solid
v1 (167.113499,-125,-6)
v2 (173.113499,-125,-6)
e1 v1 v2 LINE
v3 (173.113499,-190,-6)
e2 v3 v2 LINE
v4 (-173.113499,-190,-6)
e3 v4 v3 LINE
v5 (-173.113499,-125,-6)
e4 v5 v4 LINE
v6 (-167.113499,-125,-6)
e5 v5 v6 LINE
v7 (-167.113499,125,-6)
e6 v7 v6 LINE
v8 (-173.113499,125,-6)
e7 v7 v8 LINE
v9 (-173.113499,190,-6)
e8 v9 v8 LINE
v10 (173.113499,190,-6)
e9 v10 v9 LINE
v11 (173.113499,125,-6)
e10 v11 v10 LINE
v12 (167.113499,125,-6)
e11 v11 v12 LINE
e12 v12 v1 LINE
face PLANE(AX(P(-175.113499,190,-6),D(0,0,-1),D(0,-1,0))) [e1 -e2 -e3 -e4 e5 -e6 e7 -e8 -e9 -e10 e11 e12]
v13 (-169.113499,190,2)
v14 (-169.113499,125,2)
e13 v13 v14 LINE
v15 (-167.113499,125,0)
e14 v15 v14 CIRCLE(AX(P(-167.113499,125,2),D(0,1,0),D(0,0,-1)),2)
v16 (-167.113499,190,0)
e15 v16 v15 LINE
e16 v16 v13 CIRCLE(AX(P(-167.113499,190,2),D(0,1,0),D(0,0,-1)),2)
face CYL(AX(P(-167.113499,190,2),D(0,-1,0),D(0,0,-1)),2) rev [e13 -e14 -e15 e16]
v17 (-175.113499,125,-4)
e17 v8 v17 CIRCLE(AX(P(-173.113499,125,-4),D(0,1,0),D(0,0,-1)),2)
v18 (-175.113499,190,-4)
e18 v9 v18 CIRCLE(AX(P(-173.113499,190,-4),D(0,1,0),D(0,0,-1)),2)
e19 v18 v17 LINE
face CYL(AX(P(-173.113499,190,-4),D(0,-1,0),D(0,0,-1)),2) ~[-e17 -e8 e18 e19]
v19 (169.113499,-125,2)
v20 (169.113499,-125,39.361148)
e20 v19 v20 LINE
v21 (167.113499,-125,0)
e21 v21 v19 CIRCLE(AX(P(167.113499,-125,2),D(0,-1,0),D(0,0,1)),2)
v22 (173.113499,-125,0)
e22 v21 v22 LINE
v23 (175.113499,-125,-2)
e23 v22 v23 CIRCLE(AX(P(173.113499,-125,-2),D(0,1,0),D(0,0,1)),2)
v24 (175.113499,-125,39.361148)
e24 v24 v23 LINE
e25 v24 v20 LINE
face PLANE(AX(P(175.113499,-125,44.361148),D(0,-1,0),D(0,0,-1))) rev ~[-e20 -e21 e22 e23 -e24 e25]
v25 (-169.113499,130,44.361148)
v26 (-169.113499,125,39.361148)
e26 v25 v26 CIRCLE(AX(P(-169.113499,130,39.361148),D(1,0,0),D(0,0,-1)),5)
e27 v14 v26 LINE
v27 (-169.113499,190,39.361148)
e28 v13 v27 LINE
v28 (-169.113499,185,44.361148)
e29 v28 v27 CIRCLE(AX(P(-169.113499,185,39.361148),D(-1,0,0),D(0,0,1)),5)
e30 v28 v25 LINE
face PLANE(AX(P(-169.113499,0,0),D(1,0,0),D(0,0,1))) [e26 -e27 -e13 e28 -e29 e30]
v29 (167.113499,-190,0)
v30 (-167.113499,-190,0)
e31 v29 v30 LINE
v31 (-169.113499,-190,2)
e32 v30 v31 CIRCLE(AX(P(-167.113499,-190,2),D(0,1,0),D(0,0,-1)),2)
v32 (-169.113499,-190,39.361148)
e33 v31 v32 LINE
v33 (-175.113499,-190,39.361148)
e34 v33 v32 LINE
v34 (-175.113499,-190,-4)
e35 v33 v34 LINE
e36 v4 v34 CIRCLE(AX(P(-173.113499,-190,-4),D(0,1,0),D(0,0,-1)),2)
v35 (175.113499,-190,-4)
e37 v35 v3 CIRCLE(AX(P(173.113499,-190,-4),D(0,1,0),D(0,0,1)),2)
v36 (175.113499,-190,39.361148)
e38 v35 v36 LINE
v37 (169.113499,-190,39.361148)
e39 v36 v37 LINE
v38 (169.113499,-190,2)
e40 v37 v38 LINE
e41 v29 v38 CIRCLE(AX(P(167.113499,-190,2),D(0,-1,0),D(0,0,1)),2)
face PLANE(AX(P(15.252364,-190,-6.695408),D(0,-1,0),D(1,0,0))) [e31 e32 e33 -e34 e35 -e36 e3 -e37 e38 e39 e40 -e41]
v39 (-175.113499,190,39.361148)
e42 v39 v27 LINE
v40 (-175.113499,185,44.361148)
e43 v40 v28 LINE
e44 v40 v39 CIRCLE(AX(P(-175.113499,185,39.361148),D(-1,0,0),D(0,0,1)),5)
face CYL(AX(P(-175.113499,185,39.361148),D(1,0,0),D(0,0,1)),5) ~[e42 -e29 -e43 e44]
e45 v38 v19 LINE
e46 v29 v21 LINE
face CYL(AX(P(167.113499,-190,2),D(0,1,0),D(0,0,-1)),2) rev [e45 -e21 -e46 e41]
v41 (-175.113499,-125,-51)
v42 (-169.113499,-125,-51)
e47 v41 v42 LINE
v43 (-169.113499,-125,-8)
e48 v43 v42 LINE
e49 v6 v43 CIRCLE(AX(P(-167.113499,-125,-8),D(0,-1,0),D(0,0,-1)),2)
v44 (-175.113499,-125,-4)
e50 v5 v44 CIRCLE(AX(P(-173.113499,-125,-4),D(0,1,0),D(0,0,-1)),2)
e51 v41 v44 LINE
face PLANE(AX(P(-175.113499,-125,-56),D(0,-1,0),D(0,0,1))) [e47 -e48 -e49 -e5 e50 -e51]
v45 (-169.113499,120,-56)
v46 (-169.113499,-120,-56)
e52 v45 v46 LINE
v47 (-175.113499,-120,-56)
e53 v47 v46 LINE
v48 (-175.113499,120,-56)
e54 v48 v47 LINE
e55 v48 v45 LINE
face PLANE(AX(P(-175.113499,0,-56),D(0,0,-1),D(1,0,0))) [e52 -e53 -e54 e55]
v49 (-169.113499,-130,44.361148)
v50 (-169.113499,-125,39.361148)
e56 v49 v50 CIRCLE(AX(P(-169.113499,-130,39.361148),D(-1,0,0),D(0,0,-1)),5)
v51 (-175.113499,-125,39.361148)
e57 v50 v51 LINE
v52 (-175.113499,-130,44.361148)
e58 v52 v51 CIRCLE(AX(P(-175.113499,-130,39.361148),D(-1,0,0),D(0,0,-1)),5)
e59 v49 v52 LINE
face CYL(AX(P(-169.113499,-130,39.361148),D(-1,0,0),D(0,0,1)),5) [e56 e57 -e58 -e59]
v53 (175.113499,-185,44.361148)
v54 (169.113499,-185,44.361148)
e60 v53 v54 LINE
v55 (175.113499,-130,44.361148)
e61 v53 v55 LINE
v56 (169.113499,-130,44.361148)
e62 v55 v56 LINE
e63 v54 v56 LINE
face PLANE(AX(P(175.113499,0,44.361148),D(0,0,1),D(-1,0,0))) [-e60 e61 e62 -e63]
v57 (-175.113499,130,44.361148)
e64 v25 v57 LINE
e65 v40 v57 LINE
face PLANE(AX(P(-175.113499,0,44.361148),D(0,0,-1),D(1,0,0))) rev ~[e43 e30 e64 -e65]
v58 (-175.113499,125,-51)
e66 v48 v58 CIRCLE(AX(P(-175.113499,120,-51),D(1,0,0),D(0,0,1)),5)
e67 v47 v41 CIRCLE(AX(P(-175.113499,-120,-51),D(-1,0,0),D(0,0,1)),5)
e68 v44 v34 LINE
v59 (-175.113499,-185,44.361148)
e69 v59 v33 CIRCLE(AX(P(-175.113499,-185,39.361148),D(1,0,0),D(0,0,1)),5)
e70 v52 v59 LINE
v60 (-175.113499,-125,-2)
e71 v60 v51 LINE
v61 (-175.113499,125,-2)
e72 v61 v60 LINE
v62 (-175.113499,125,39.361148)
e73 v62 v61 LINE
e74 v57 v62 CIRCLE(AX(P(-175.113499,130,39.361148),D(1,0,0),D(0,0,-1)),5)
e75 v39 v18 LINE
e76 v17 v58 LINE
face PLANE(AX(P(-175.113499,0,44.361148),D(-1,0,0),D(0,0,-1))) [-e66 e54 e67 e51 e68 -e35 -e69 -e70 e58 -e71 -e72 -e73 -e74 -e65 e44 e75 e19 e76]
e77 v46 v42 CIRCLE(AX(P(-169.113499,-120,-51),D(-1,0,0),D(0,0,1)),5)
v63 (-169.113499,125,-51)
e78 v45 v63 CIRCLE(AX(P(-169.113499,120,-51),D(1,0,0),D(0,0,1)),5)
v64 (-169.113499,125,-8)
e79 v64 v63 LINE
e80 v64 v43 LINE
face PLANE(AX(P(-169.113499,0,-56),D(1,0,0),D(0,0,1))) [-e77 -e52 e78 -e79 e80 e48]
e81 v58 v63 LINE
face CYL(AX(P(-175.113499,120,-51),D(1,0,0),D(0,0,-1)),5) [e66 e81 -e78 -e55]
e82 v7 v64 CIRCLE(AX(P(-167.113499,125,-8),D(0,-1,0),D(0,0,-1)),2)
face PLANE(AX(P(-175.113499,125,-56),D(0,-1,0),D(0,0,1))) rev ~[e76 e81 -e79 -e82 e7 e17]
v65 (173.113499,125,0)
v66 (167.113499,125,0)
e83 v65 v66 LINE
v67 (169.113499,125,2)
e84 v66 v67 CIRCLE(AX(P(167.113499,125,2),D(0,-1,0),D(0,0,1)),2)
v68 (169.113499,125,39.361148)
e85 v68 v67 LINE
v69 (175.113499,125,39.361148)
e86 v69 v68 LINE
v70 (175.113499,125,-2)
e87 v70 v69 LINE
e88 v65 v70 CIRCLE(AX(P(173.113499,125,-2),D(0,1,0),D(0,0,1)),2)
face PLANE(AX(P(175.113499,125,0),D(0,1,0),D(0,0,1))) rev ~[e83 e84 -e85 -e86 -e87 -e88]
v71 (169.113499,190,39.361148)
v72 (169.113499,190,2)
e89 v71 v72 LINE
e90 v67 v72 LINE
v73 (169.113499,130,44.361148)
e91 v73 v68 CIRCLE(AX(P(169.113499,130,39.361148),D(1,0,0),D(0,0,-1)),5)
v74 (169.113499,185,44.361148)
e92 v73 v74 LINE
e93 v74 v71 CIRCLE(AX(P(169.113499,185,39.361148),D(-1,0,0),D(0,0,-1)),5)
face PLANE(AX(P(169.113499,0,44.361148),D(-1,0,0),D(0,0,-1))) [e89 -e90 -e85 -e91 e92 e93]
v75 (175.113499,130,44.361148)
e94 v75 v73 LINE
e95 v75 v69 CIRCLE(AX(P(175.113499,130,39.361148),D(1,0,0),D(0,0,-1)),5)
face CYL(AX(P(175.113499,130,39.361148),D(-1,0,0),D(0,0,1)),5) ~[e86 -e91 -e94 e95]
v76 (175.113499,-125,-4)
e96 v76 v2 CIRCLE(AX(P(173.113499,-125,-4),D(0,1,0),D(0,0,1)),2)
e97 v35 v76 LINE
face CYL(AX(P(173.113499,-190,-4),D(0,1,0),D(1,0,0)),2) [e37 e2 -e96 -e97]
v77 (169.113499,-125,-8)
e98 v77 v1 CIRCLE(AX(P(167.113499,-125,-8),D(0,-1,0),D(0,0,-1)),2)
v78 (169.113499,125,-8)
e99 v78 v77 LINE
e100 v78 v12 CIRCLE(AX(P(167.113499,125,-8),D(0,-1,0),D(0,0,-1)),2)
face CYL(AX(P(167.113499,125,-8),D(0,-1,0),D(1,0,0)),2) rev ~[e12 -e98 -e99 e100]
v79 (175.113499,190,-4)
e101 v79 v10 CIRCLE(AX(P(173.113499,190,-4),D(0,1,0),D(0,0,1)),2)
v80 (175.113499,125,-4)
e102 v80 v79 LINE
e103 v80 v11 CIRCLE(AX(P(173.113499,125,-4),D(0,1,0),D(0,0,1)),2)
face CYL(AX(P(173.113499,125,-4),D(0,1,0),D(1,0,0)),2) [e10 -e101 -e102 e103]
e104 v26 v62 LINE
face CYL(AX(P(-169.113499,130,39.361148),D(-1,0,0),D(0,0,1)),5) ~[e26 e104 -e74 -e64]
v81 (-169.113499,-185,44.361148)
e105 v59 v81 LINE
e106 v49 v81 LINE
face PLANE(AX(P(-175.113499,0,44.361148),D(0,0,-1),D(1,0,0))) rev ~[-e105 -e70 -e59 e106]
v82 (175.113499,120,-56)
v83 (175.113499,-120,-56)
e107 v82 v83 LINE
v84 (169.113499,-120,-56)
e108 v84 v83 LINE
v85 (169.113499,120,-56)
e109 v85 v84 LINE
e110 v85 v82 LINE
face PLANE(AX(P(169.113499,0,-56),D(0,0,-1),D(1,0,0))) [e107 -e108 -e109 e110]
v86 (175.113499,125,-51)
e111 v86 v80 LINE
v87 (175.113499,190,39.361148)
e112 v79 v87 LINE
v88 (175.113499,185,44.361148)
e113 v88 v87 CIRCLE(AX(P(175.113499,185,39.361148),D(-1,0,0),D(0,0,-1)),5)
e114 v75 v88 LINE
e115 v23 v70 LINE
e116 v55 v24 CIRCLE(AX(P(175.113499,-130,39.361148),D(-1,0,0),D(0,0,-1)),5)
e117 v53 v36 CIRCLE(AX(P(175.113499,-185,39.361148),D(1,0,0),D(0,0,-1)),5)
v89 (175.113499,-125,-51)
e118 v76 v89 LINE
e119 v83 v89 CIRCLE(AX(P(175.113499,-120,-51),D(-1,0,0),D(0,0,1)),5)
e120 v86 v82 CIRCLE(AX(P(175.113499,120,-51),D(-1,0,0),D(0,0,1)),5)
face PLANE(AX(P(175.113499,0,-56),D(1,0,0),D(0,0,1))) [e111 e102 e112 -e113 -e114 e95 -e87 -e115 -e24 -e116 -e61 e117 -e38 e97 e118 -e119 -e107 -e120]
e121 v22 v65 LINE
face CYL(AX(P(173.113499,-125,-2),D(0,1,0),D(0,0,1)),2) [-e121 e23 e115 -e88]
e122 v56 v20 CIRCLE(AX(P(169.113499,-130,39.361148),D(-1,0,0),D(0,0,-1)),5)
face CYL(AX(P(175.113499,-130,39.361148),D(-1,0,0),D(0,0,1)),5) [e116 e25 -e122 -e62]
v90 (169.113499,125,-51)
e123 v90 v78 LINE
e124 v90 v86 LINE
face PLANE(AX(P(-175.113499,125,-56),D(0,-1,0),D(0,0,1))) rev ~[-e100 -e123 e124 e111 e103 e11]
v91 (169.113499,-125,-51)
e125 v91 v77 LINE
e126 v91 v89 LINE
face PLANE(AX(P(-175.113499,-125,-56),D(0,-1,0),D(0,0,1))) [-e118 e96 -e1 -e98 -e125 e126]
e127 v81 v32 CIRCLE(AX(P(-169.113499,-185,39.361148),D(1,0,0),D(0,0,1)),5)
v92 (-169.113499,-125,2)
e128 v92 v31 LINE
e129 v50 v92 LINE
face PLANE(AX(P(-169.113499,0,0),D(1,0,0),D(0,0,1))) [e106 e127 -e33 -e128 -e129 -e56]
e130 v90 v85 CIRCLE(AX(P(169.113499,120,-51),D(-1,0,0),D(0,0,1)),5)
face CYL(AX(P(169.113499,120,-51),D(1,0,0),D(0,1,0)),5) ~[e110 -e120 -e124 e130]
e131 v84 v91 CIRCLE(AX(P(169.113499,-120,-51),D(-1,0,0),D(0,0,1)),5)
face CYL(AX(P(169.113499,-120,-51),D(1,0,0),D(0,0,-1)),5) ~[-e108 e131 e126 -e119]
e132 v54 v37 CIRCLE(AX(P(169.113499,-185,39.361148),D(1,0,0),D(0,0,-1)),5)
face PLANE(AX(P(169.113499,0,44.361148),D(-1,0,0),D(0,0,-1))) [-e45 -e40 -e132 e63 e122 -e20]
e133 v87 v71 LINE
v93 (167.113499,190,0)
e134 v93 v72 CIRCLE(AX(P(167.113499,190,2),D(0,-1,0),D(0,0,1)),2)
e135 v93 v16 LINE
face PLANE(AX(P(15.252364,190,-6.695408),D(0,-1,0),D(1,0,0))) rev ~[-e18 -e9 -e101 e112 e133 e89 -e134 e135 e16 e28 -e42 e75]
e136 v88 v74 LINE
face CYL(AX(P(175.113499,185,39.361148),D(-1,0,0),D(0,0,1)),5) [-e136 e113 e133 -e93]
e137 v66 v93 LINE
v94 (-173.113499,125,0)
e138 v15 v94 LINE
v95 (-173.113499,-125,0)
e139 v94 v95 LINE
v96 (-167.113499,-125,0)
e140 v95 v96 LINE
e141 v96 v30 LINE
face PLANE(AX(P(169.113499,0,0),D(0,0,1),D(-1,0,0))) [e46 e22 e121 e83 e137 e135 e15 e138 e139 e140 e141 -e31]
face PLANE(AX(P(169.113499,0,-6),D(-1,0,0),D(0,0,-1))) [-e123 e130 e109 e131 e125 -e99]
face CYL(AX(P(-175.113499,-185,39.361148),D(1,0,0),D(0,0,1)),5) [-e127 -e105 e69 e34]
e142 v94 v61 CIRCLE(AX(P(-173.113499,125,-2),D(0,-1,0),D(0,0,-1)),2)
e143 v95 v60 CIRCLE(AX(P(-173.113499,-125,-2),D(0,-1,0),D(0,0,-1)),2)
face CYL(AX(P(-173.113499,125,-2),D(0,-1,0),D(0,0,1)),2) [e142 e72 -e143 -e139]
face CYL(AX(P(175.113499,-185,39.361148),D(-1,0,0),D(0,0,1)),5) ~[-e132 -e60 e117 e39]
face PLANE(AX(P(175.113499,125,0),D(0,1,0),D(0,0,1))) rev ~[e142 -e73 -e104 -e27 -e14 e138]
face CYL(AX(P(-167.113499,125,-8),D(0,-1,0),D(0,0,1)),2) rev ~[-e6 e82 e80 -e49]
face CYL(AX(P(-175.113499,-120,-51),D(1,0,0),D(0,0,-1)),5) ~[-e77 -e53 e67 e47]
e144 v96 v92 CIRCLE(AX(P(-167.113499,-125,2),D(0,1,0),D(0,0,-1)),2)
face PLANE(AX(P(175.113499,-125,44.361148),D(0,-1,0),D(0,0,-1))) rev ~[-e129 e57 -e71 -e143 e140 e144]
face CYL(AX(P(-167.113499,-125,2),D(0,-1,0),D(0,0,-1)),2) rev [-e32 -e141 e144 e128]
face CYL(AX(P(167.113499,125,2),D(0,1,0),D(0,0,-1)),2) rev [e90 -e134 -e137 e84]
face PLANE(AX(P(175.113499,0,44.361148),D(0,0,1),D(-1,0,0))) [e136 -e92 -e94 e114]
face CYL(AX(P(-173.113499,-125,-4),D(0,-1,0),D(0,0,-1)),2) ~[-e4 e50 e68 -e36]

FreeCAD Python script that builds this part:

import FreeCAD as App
import Part
import Sketcher
Q = App.Units.Quantity


def edges_at(feature, points):
    """Names of the edges that pass closest to the given points."""
    edges = feature.Shape.Edges
    near = lambda p: min(range(len(edges)), key=lambda i: edges[i].distToShape(Part.Vertex(*p))[0])
    return sorted({f"Edge{near(p) + 1}" for p in points})

doc = App.newDocument("Part")
params = doc.addObject("Spreadsheet::Sheet", "Params")
for row, (alias, value) in enumerate([
    ("sketch1_width", "6 mm"),
    ("sketch1_height", "50 mm"),
    ("pad1_length", "380 mm"),
    ("sketch2_width", "250 mm"),
    ("pocket1_length", "500 mm"),
    ("sketch3_width", "65 mm"),
    ("sketch3_height", "50 mm"),
    ("pocket2_length", "500 mm"),
    ("fillet_radius", "2 mm"),
    ("fillet2_radius", "5 mm"),
], start=1):
    params.set(f"A{row}", alias)
    params.set(f"B{row}", "=" + value)
    params.setAlias(f"B{row}", alias)

body = doc.addObject("PartDesign::Body", "Body")

sketch1 = body.newObject("Sketcher::SketchObject", "Sketch")
sketch1.AttachmentSupport = (doc.getObject("XZ_Plane"), [""])
sketch1.MapMode = "FlatFace"
sketch1.addGeometry(Part.LineSegment(App.Vector(169, 0, 0), App.Vector(-169, 0, 0)), False)
sketch1.addGeometry(Part.LineSegment(App.Vector(-169, 0, 0), App.Vector(-169, 44, 0)), False)
sketch1.addGeometry(Part.LineSegment(App.Vector(-169, 44, 0), App.Vector(-175, 44, 0)), False)
sketch1.addGeometry(Part.LineSegment(App.Vector(-175, 44, 0), App.Vector(-175, -56, 0)), False)
sketch1.addGeometry(Part.LineSegment(App.Vector(-175, -56, 0), App.Vector(-169, -56, 0)), False)
sketch1.addGeometry(Part.LineSegment(App.Vector(-169, -56, 0), App.Vector(-169, -6, 0)), False)
sketch1.addGeometry(Part.LineSegment(App.Vector(-169, -6, 0), App.Vector(169, -6, 0)), False)
sketch1.addGeometry(Part.LineSegment(App.Vector(169, -6, 0), App.Vector(169, -56, 0)), False)
sketch1.addGeometry(Part.LineSegment(App.Vector(169, -56, 0), App.Vector(175, -56, 0)), False)
sketch1.addGeometry(Part.LineSegment(App.Vector(175, -56, 0), App.Vector(175, 44, 0)), False)
sketch1.addGeometry(Part.LineSegment(App.Vector(175, 44, 0), App.Vector(169, 44, 0)), False)
sketch1.addGeometry(Part.LineSegment(App.Vector(169, 44, 0), App.Vector(169, 0, 0)), False)
sketch1.addConstraint(Sketcher.Constraint("Coincident", 0, 2, 1, 1))
sketch1.addConstraint(Sketcher.Constraint("Coincident", 1, 2, 2, 1))
sketch1.addConstraint(Sketcher.Constraint("Coincident", 2, 2, 3, 1))
sketch1.addConstraint(Sketcher.Constraint("Coincident", 3, 2, 4, 1))
sketch1.addConstraint(Sketcher.Constraint("Coincident", 4, 2, 5, 1))
sketch1.addConstraint(Sketcher.Constraint("Coincident", 5, 2, 6, 1))
sketch1.addConstraint(Sketcher.Constraint("Coincident", 6, 2, 7, 1))
sketch1.addConstraint(Sketcher.Constraint("Coincident", 7, 2, 8, 1))
sketch1.addConstraint(Sketcher.Constraint("Coincident", 8, 2, 9, 1))
sketch1.addConstraint(Sketcher.Constraint("Coincident", 9, 2, 10, 1))
sketch1.addConstraint(Sketcher.Constraint("Coincident", 10, 2, 11, 1))
sketch1.addConstraint(Sketcher.Constraint("Coincident", 11, 2, 0, 1))
sketch1.addConstraint(Sketcher.Constraint("Horizontal", 0))
sketch1.addConstraint(Sketcher.Constraint("Vertical", 1))
sketch1.addConstraint(Sketcher.Constraint("Horizontal", 2))
sketch1.addConstraint(Sketcher.Constraint("Vertical", 3))
sketch1.addConstraint(Sketcher.Constraint("Horizontal", 4))
sketch1.addConstraint(Sketcher.Constraint("Vertical", 5))
sketch1.addConstraint(Sketcher.Constraint("Horizontal", 6))
sketch1.addConstraint(Sketcher.Constraint("Vertical", 7))
sketch1.addConstraint(Sketcher.Constraint("Horizontal", 8))
sketch1.addConstraint(Sketcher.Constraint("Vertical", 9))
sketch1.addConstraint(Sketcher.Constraint("Horizontal", 10))
sketch1.addConstraint(Sketcher.Constraint("Vertical", 11))
sketch1.addConstraint(Sketcher.Constraint("Symmetric", 0, 2, 11, 2, -1, 1))
sketch1.addConstraint(Sketcher.Constraint("Symmetric", 4, 2, 7, 2, -2))
sketch1.addConstraint(Sketcher.Constraint("Symmetric", 2, 2, 9, 2, -2))
sketch1.addConstraint(Sketcher.Constraint("Vertical", 1, 2, 4, 2))
sketch1.addConstraint(Sketcher.Constraint("DistanceX", 2, 2, 2, 1, Q("6 mm")))
sketch1.addConstraint(Sketcher.Constraint("DistanceY", 5, 1, 5, 2, Q("50 mm")))
sketch1.addConstraint(Sketcher.Constraint("DistanceY", 3, 2, -1, 1, Q("56 mm")))
sketch1.addConstraint(Sketcher.Constraint("DistanceX", 0, 2, 0, 1, Q("338.226998 mm")))
sketch1.addConstraint(Sketcher.Constraint("DistanceY", 1, 1, 1, 2, Q("44.361148 mm")))
sketch1.setExpression("Constraints[28]", "Params.sketch1_width")
sketch1.setExpression("Constraints[29]", "Params.sketch1_height")
pad1 = body.newObject("PartDesign::Pad", "Pad")
pad1.Profile = sketch1
pad1.setExpression("Length", "Params.pad1_length")
pad1.Midplane = True

sketch2 = body.newObject("Sketcher::SketchObject", "Sketch001")
sketch2.AttachmentSupport = (doc.getObject("YZ_Plane"), [""])
sketch2.MapMode = "FlatFace"
sketch2.AttachmentOffset = App.Placement(App.Vector(0, 0, 175.113499), App.Rotation())
sketch2.addGeometry(Part.LineSegment(App.Vector(-125, 0, 0), App.Vector(125, 0, 0)), False)
sketch2.addGeometry(Part.LineSegment(App.Vector(125, 0, 0), App.Vector(125, 44, 0)), False)
sketch2.addGeometry(Part.LineSegment(App.Vector(125, 44, 0), App.Vector(-125, 44, 0)), False)
sketch2.addGeometry(Part.LineSegment(App.Vector(-125, 44, 0), App.Vector(-125, 0, 0)), False)
sketch2.addConstraint(Sketcher.Constraint("Coincident", 0, 2, 1, 1))
sketch2.addConstraint(Sketcher.Constraint("Coincident", 1, 2, 2, 1))
sketch2.addConstraint(Sketcher.Constraint("Coincident", 2, 2, 3, 1))
sketch2.addConstraint(Sketcher.Constraint("Coincident", 3, 2, 0, 1))
sketch2.addConstraint(Sketcher.Constraint("Horizontal", 0))
sketch2.addConstraint(Sketcher.Constraint("Vertical", 1))
sketch2.addConstraint(Sketcher.Constraint("Horizontal", 2))
sketch2.addConstraint(Sketcher.Constraint("Vertical", 3))
sketch2.addConstraint(Sketcher.Constraint("Symmetric", 0, 2, 3, 2, -1, 1))
sketch2.addConstraint(Sketcher.Constraint("DistanceX", 0, 1, 0, 2, Q("250 mm")))
sketch2.addConstraint(Sketcher.Constraint("DistanceY", 1, 1, 1, 2, Q("44.361148 mm")))
sketch2.setExpression("Constraints[9]", "Params.sketch2_width")
pocket1 = body.newObject("PartDesign::Pocket", "Pocket")
pocket1.Profile = sketch2
pocket1.setExpression("Length", "Params.pocket1_length")

sketch3 = body.newObject("Sketcher::SketchObject", "Sketch002")
sketch3.AttachmentSupport = (doc.getObject("YZ_Plane"), [""])
sketch3.MapMode = "FlatFace"
sketch3.AttachmentOffset = App.Placement(App.Vector(0, 0, -175.113499), App.Rotation())
sketch3.addGeometry(Part.LineSegment(App.Vector(190, -6, 0), App.Vector(190, -56, 0)), False)
sketch3.addGeometry(Part.LineSegment(App.Vector(190, -56, 0), App.Vector(125, -56, 0)), False)
sketch3.addGeometry(Part.LineSegment(App.Vector(125, -56, 0), App.Vector(125, -6, 0)), False)
sketch3.addGeometry(Part.LineSegment(App.Vector(125, -6, 0), App.Vector(190, -6, 0)), False)
sketch3.addGeometry(Part.LineSegment(App.Vector(-125, -6, 0), App.Vector(-125, -56, 0)), False)
sketch3.addGeometry(Part.LineSegment(App.Vector(-125, -56, 0), App.Vector(-190, -56, 0)), False)
sketch3.addGeometry(Part.LineSegment(App.Vector(-190, -56, 0), App.Vector(-190, -6, 0)), False)
sketch3.addGeometry(Part.LineSegment(App.Vector(-190, -6, 0), App.Vector(-125, -6, 0)), False)
sketch3.addConstraint(Sketcher.Constraint("Coincident", 0, 2, 1, 1))
sketch3.addConstraint(Sketcher.Constraint("Coincident", 1, 2, 2, 1))
sketch3.addConstraint(Sketcher.Constraint("Coincident", 2, 2, 3, 1))
sketch3.addConstraint(Sketcher.Constraint("Coincident", 3, 2, 0, 1))
sketch3.addConstraint(Sketcher.Constraint("Coincident", 4, 2, 5, 1))
sketch3.addConstraint(Sketcher.Constraint("Coincident", 5, 2, 6, 1))
sketch3.addConstraint(Sketcher.Constraint("Coincident", 6, 2, 7, 1))
sketch3.addConstraint(Sketcher.Constraint("Coincident", 7, 2, 4, 1))
sketch3.addConstraint(Sketcher.Constraint("Vertical", 0))
sketch3.addConstraint(Sketcher.Constraint("Horizontal", 1))
sketch3.addConstraint(Sketcher.Constraint("Vertical", 2))
sketch3.addConstraint(Sketcher.Constraint("Horizontal", 3))
sketch3.addConstraint(Sketcher.Constraint("Vertical", 4))
sketch3.addConstraint(Sketcher.Constraint("Horizontal", 5))
sketch3.addConstraint(Sketcher.Constraint("Vertical", 6))
sketch3.addConstraint(Sketcher.Constraint("Horizontal", 7))
sketch3.addConstraint(Sketcher.Constraint("Symmetric", 1, 2, 4, 2, -2))
sketch3.addConstraint(Sketcher.Constraint("Symmetric", 3, 2, 6, 2, -2))
sketch3.addConstraint(Sketcher.Constraint("DistanceX", 1, 2, 1, 1, Q("65 mm")))
sketch3.addConstraint(Sketcher.Constraint("DistanceY", 0, 2, 0, 1, Q("50 mm")))
sketch3.addConstraint(Sketcher.Constraint("DistanceX", -1, 1, 0, 2, Q("190 mm")))
sketch3.addConstraint(Sketcher.Constraint("DistanceY", 0, 2, -1, 1, Q("56 mm")))
sketch3.setExpression("Constraints[18]", "Params.sketch3_width")
sketch3.setExpression("Constraints[19]", "Params.sketch3_height")
pocket2 = body.newObject("PartDesign::Pocket", "Pocket001")
pocket2.Profile = sketch3
pocket2.setExpression("Length", "Params.pocket2_length")
pocket2.Reversed = True
doc.recompute()

fillet = body.newObject("PartDesign::Fillet", "Fillet")
fillet.Base = (pocket2, edges_at(pocket2, [
    (169.113, 157.5, 0),
    (169.113, -157.5, 0),
    (175.113, 0, 0),
    (169.113, 0, -6),
    (175.113, -157.5, -6),
    (175.113, 157.5, -6),
    (-169.113, 157.5, 0),
    (-169.113, -157.5, 0),
    (-175.113, 0, 0),
    (-175.113, -157.5, -6),
    (-169.113, 0, -6),
    (-175.113, 157.5, -6),
]))
fillet.setExpression("Radius", "Params.fillet_radius")
doc.recompute()

fillet2 = body.newObject("PartDesign::Fillet", "Fillet001")
fillet2.Base = (fillet, edges_at(fillet, [
    (172.113, -190, 44.361),
    (172.113, -125, 44.361),
    (-172.113, -190, 44.361),
    (-172.113, -125, 44.361),
    (-172.113, 190, 44.361),
    (-172.113, 125, 44.361),
    (172.113, 125, 44.361),
    (172.113, 190, 44.361),
    (172.113, 125, -56),
    (172.113, -125, -56),
    (-172.113, -125, -56),
    (-172.113, 125, -56),
]))
fillet2.setExpression("Radius", "Params.fillet2_radius")

doc.recompute()
